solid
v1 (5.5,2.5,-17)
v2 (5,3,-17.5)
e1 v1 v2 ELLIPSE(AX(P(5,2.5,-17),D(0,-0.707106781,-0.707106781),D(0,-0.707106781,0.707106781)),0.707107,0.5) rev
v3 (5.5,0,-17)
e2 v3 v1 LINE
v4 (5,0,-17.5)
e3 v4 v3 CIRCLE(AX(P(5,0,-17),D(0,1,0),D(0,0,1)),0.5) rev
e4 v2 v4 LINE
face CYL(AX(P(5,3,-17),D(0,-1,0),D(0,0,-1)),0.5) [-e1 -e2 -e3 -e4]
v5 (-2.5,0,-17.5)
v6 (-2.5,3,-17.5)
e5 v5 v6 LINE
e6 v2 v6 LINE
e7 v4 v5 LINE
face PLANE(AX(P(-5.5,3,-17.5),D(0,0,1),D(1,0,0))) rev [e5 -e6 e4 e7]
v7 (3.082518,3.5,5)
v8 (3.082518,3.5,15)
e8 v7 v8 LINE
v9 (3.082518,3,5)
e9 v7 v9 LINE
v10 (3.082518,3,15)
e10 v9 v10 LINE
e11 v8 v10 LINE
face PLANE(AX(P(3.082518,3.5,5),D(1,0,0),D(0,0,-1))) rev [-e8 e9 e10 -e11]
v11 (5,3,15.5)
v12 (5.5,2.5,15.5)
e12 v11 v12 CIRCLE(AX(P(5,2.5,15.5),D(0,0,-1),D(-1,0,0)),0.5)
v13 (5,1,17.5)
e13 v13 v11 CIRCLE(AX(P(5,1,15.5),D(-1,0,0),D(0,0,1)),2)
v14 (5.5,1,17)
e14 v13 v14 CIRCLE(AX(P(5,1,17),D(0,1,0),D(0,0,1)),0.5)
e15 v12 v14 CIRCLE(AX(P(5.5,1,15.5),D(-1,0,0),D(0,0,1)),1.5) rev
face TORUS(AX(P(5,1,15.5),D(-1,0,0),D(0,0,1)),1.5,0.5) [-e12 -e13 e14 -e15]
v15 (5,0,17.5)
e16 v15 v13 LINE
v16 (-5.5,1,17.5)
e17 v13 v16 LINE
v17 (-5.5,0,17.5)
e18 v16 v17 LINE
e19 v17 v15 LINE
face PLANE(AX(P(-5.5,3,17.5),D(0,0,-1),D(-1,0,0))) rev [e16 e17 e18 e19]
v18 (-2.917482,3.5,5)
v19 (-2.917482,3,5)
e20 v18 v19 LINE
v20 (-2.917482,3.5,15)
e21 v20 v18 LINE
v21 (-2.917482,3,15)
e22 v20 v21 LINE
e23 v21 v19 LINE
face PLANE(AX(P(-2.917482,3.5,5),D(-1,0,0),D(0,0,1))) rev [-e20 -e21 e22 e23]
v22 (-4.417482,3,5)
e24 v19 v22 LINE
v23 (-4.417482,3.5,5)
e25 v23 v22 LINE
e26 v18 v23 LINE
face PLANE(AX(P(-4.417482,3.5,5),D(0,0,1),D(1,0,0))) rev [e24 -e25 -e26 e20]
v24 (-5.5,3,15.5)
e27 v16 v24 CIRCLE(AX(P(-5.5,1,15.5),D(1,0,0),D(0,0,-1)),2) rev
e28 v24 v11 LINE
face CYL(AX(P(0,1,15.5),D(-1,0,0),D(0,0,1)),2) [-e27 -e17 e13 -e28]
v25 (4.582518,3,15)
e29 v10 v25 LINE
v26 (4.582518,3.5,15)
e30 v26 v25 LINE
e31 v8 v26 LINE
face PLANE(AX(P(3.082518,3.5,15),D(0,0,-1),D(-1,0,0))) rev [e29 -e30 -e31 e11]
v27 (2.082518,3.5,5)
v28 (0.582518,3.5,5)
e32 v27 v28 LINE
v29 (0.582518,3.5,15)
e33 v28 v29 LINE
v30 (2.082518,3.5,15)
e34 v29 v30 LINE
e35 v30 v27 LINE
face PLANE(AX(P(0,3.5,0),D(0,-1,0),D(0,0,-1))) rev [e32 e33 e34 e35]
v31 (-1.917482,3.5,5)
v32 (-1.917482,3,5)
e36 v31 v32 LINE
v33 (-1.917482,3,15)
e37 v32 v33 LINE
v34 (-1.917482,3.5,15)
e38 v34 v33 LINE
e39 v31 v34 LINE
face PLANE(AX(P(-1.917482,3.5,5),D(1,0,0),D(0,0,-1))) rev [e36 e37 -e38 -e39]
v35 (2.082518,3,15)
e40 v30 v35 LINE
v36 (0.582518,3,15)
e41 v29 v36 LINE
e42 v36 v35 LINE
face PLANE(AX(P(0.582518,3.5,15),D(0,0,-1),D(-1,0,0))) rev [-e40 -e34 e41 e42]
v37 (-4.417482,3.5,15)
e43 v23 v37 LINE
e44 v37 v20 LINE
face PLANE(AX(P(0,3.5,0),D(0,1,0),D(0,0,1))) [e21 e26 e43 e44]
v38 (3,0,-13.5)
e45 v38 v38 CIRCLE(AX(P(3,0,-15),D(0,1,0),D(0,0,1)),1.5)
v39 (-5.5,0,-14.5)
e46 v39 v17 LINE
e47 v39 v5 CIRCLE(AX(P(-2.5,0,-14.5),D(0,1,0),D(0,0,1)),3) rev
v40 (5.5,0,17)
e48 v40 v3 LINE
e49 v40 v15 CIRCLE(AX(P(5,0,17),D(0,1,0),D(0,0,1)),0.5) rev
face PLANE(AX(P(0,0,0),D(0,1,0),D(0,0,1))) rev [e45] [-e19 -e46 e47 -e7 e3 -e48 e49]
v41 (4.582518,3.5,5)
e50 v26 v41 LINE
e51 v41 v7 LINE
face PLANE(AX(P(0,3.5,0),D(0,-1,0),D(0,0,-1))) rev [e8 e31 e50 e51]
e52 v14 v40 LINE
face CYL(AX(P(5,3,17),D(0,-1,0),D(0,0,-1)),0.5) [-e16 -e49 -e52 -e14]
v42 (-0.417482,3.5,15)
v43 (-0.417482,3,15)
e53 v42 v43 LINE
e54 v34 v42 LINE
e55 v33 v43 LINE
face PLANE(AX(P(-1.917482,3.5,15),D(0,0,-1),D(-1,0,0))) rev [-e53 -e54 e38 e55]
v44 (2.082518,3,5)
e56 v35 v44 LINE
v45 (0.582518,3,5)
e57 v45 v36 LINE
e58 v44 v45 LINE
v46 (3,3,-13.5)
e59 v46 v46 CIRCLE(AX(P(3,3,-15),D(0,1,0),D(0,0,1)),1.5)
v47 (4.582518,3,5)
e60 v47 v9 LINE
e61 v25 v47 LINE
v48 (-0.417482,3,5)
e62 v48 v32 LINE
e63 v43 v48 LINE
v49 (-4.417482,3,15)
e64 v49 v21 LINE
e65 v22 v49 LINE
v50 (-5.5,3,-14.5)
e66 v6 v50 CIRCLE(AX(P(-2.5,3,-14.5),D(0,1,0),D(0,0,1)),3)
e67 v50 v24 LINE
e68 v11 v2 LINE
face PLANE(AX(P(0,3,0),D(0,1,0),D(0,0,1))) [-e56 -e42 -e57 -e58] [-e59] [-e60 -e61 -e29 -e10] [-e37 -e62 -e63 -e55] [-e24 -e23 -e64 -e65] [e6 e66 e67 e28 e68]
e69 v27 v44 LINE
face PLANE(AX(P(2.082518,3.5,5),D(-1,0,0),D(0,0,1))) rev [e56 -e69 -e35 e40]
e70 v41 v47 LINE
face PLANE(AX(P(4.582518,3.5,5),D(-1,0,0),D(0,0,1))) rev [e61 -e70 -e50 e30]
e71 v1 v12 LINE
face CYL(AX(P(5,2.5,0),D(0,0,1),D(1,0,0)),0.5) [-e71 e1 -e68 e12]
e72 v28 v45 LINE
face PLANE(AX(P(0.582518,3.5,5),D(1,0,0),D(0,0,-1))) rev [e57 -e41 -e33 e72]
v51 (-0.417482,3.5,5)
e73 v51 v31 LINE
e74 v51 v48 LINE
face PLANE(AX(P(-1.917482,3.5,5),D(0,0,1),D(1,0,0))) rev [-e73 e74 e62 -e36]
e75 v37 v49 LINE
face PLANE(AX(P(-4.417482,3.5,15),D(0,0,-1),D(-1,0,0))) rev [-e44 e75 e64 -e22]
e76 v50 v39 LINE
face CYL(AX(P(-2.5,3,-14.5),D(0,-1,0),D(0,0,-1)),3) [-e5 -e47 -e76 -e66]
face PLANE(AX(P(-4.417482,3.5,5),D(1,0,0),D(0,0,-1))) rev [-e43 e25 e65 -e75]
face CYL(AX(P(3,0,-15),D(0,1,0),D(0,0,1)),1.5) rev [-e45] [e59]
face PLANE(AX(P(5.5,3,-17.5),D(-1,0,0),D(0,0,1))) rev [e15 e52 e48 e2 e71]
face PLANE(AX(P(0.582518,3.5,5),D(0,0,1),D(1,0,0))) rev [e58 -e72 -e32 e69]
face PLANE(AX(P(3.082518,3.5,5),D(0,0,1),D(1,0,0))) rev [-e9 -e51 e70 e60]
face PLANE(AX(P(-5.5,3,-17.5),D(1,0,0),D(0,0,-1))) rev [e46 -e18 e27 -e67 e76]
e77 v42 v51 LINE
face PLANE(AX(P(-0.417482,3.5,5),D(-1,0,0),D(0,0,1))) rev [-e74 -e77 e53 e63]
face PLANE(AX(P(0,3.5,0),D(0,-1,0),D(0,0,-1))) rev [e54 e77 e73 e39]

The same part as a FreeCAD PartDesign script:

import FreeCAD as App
import Part
import Sketcher
from FreeCAD import Vector


def edges_at(feature, points):
    """Names of the edges that pass closest to the given points."""
    edges = feature.Shape.Edges
    near = lambda p: min(range(len(edges)), key=lambda i: edges[i].distToShape(Part.Vertex(*p))[0])
    return sorted({f"Edge{near(p) + 1}" for p in points})


def add_polygon(sketch, points):
    """Adds a closed chain of lines whose ends are joined by coincident constraints."""
    first, n = sketch.GeometryCount, len(points)
    for a, b in zip(points, points[1:] + points[:1]):
        sketch.addGeometry(Part.LineSegment(App.Vector(*a, 0), App.Vector(*b, 0)), False)
    for i in range(n):
        sketch.addConstraint(Sketcher.Constraint("Coincident", first + i, 2, first + (i + 1) % n, 1))

doc = App.newDocument("Part")
body = doc.addObject("PartDesign::Body", "Body")

# Sketch on XZ plane
sketch1 = body.newObject("Sketcher::SketchObject", "Sketch")
sketch1.AttachmentSupport = (doc.getObject("XZ_Plane"), [""])
sketch1.MapMode = "FlatFace"
add_polygon(sketch1, [(-6, -18), (-6, 18), (6, 18), (6, -18)])  # lines 0-3
sketch1.addConstraint([
    Sketcher.Constraint("Vertical", 0),
    Sketcher.Constraint("Horizontal", 1),
    Sketcher.Constraint("Vertical", 2),
    Sketcher.Constraint("Horizontal", 3),
    Sketcher.Constraint("Symmetric", 0, 2, 2, 2, -1, 1),
    Sketcher.Constraint("DistanceX", 1, 1, 1, 2, 11.0),
    Sketcher.Constraint("DistanceY", 0, 1, 0, 2, 35.0),
])
pad1 = body.newObject("PartDesign::Pad", "Pad")
pad1.Profile = sketch1
pad1.Length = 3
pad1.Reversed = True

# Sketch on XZ plane
sketch2 = body.newObject("Sketcher::SketchObject", "Sketch001")
sketch2.AttachmentSupport = (doc.getObject("XZ_Plane"), [""])
sketch2.MapMode = "FlatFace"
sketch2.AttachmentOffset = App.Placement(Vector(0, 0, -3), App.Rotation())
sketch2.addGeometry(Part.Circle(Vector(3, -15, 0), Vector(0, 0, 1), 1.5), False)
sketch2.addConstraint([
    Sketcher.Constraint("Diameter", 0, 3.0),
    Sketcher.Constraint("DistanceX", -1, 1, 0, 3, 3.0),
    Sketcher.Constraint("DistanceY", 0, 3, -1, 1, 15.0),
])
pocket1 = body.newObject("PartDesign::Pocket", "Pocket")
pocket1.Profile = sketch2
pocket1.Length = 3
pocket1.Reversed = True
doc.recompute()

fillet = body.newObject("PartDesign::Fillet", "Fillet")
fillet.Base = (pocket1, edges_at(pocket1, [(-5.5, 1.5, -17.5)]))
fillet.Radius = 3

# Sketch on XZ plane
sketch3 = body.newObject("Sketcher::SketchObject", "Sketch002")
sketch3.AttachmentSupport = (doc.getObject("XZ_Plane"), [""])
sketch3.MapMode = "FlatFace"
sketch3.AttachmentOffset = App.Placement(Vector(0, 0, -3), App.Rotation())
add_polygon(sketch3, [(-1.9, 5), (-1.9, 15), (-0.4, 15), (-0.4, 5)])  # lines 0-3
add_polygon(sketch3, [(-4.4, 5), (-4.4, 15), (-2.9, 15), (-2.9, 5)])  # lines 4-7
add_polygon(sketch3, [(0.6, 5), (0.6, 15), (2.1, 15), (2.1, 5)])  # lines 8-11
add_polygon(sketch3, [(3.1, 5), (3.1, 15), (4.6, 15), (4.6, 5)])  # lines 12-15
sketch3.addConstraint([
    Sketcher.Constraint("Vertical", 0),
    Sketcher.Constraint("Horizontal", 1),
    Sketcher.Constraint("Vertical", 2),
    Sketcher.Constraint("Horizontal", 3),
    Sketcher.Constraint("Vertical", 4),
    Sketcher.Constraint("Horizontal", 5),
    Sketcher.Constraint("Vertical", 6),
    Sketcher.Constraint("Horizontal", 7),
    Sketcher.Constraint("Vertical", 8),
    Sketcher.Constraint("Horizontal", 9),
    Sketcher.Constraint("Vertical", 10),
    Sketcher.Constraint("Horizontal", 11),
    Sketcher.Constraint("Vertical", 12),
    Sketcher.Constraint("Horizontal", 13),
    Sketcher.Constraint("Vertical", 14),
    Sketcher.Constraint("Horizontal", 15),
    Sketcher.Constraint("Horizontal", 1, 2, 4, 2),
    Sketcher.Constraint("Horizontal", 3, 2, 6, 2),
    Sketcher.Constraint("Horizontal", 5, 2, 8, 2),
    Sketcher.Constraint("Horizontal", 7, 2, 10, 2),
    Sketcher.Constraint("Horizontal", 9, 2, 12, 2),
    Sketcher.Constraint("Horizontal", 11, 2, 14, 2),
    Sketcher.Constraint("Equal", 3, 5),
    Sketcher.Constraint("Equal", 7, 9),
    Sketcher.Constraint("Equal", 11, 13),
    Sketcher.Constraint("DistanceY", 0, 1, 0, 2, 10.0),
    Sketcher.Constraint("DistanceX", 1, 1, 1, 2, 1.5),
    Sketcher.Constraint("DistanceY", -1, 1, 0, 2, 15.0),
    Sketcher.Constraint("DistanceX", 4, 2, 1, 2, 4.0),
    Sketcher.Constraint("DistanceX", 1, 2, 8, 2, 1.0),
    Sketcher.Constraint("DistanceX", 9, 2, 12, 2, 1.0),
    Sketcher.Constraint("DistanceX", 0, 2, -1, 1, 1.917482),
])
pad2 = body.newObject("PartDesign::Pad", "Pad001")
pad2.Profile = sketch3
pad2.Length = 0.5
pad2.Reversed = True
doc.recompute()

fillet2 = body.newObject("PartDesign::Fillet", "Fillet001")
fillet2.Base = (pad2, edges_at(pad2, [(0, 3, 17.5)]))
fillet2.Radius = 2
doc.recompute()

fillet3 = body.newObject("PartDesign::Fillet", "Fillet002")
fillet3.Base = (fillet2, edges_at(fillet2, [
    (5.5, 1.5, -17.5),
    (5.5, 3, -1),
    (5.5, 0.5, 17.5),
    (5.5, 2.414, 16.914),
]))
fillet3.Radius = 0.5

doc.recompute()
